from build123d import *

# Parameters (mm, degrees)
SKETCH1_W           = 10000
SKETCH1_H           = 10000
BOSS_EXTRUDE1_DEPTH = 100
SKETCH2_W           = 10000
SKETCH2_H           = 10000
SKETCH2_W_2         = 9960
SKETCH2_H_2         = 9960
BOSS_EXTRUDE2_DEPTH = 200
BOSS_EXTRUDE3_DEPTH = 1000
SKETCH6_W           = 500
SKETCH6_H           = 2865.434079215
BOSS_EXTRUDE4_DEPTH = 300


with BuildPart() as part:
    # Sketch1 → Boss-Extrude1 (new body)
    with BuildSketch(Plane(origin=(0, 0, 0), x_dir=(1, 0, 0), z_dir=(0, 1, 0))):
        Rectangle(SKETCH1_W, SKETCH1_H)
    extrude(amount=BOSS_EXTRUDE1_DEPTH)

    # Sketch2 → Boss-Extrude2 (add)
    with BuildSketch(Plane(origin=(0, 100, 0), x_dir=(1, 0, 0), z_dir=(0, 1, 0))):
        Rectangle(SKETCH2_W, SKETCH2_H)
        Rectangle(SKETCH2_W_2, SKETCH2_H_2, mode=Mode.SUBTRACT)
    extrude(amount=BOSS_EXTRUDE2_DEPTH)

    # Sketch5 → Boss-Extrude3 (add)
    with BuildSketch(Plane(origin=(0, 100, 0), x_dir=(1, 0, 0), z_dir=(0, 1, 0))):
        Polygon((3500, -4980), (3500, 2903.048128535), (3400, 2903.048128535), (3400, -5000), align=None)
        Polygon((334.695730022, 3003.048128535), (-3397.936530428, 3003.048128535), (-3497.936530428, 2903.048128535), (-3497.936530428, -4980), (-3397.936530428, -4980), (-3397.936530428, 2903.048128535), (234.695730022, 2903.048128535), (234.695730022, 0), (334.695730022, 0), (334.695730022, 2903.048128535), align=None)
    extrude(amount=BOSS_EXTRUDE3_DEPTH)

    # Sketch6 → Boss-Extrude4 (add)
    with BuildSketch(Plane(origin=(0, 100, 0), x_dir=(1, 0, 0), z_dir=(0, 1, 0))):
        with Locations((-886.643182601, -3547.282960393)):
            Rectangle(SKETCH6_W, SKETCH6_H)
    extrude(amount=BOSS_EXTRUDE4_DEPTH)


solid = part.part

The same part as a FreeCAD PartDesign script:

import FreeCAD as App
import Part
import Sketcher
Q = App.Units.Quantity

doc = App.newDocument("Part")
body = doc.addObject("PartDesign::Body", "Body")

sketch1 = body.newObject("Sketcher::SketchObject", "Sketch")
sketch1.AttachmentSupport = (doc.getObject("XZ_Plane"), [""])
sketch1.MapMode = "FlatFace"
sketch1.addGeometry([
    Part.LineSegment(App.Vector(-5000, -5000, 0), App.Vector(-5000, 5000, 0)),
    Part.LineSegment(App.Vector(-5000, 5000, 0), App.Vector(5000, 5000, 0)),
    Part.LineSegment(App.Vector(5000, 5000, 0), App.Vector(5000, -5000, 0)),
    Part.LineSegment(App.Vector(5000, -5000, 0), App.Vector(-5000, -5000, 0)),
], False)
sketch1.addConstraint([
    Sketcher.Constraint("Coincident", 0, 2, 1, 1),
    Sketcher.Constraint("Coincident", 1, 2, 2, 1),
    Sketcher.Constraint("Coincident", 2, 2, 3, 1),
    Sketcher.Constraint("Coincident", 3, 2, 0, 1),
    Sketcher.Constraint("Vertical", 0),
    Sketcher.Constraint("Horizontal", 1),
    Sketcher.Constraint("Vertical", 2),
    Sketcher.Constraint("Horizontal", 3),
    Sketcher.Constraint("Symmetric", 0, 2, 2, 2, -1, 1),
    Sketcher.Constraint("Equal", 3, 0),
    Sketcher.Constraint("DistanceX", 1, 1, 1, 2, 10000.0),
])
pad1 = body.newObject("PartDesign::Pad", "Pad")
pad1.Profile = sketch1
pad1.Length = 100
pad1.Reversed = True

sketch2 = body.newObject("Sketcher::SketchObject", "Sketch001")
sketch2.AttachmentSupport = (doc.getObject("XZ_Plane"), [""])
sketch2.MapMode = "FlatFace"
sketch2.AttachmentOffset = App.Placement(App.Vector(0, 0, -100), App.Rotation())
sketch2.addGeometry([
    Part.LineSegment(App.Vector(-5000, -5000, 0), App.Vector(-5000, 5000, 0)),
    Part.LineSegment(App.Vector(-5000, 5000, 0), App.Vector(5000, 5000, 0)),
    Part.LineSegment(App.Vector(5000, 5000, 0), App.Vector(5000, -5000, 0)),
    Part.LineSegment(App.Vector(5000, -5000, 0), App.Vector(-5000, -5000, 0)),
    Part.LineSegment(App.Vector(4980, 4980, 0), App.Vector(-4980, 4980, 0)),
    Part.LineSegment(App.Vector(-4980, 4980, 0), App.Vector(-4980, -4980, 0)),
    Part.LineSegment(App.Vector(-4980, -4980, 0), App.Vector(4980, -4980, 0)),
    Part.LineSegment(App.Vector(4980, -4980, 0), App.Vector(4980, 4980, 0)),
], False)
sketch2.addConstraint([
    Sketcher.Constraint("Coincident", 0, 2, 1, 1),
    Sketcher.Constraint("Coincident", 1, 2, 2, 1),
    Sketcher.Constraint("Coincident", 2, 2, 3, 1),
    Sketcher.Constraint("Coincident", 3, 2, 0, 1),
    Sketcher.Constraint("Coincident", 4, 2, 5, 1),
    Sketcher.Constraint("Coincident", 5, 2, 6, 1),
    Sketcher.Constraint("Coincident", 6, 2, 7, 1),
    Sketcher.Constraint("Coincident", 7, 2, 4, 1),
    Sketcher.Constraint("Vertical", 0),
    Sketcher.Constraint("Horizontal", 1),
    Sketcher.Constraint("Vertical", 2),
    Sketcher.Constraint("Horizontal", 3),
    Sketcher.Constraint("Horizontal", 4),
    Sketcher.Constraint("Vertical", 5),
    Sketcher.Constraint("Horizontal", 6),
    Sketcher.Constraint("Vertical", 7),
    Sketcher.Constraint("Symmetric", 0, 2, 2, 2, -1, 1),
    Sketcher.Constraint("Symmetric", 4, 2, 6, 2, -1, 1),
    Sketcher.Constraint("Equal", 3, 0),
    Sketcher.Constraint("Equal", 6, 5),
    Sketcher.Constraint("DistanceX", 1, 1, 1, 2, 10000.0),
    Sketcher.Constraint("DistanceX", 4, 2, 4, 1, 9960.0),
])
pad2 = body.newObject("PartDesign::Pad", "Pad001")
pad2.Profile = sketch2
pad2.Length = 200
pad2.Reversed = True

sketch3 = body.newObject("Sketcher::SketchObject", "Sketch002")
sketch3.AttachmentSupport = (doc.getObject("XZ_Plane"), [""])
sketch3.MapMode = "FlatFace"
sketch3.AttachmentOffset = App.Placement(App.Vector(0, 0, -100), App.Rotation())
sketch3.addGeometry([
    Part.LineSegment(App.Vector(3500, 4980, 0), App.Vector(3500, -2903, 0)),
    Part.LineSegment(App.Vector(3500, -2903, 0), App.Vector(3400, -2903, 0)),
    Part.LineSegment(App.Vector(3400, -2903, 0), App.Vector(3400, 5000, 0)),
    Part.LineSegment(App.Vector(3400, 5000, 0), App.Vector(3500, 4980, 0)),
    Part.LineSegment(App.Vector(335, -3003, 0), App.Vector(-3398, -3003, 0)),
    Part.LineSegment(App.Vector(-3398, -3003, 0), App.Vector(-3498, -2903, 0)),
    Part.LineSegment(App.Vector(-3498, -2903, 0), App.Vector(-3498, 4980, 0)),
    Part.LineSegment(App.Vector(-3498, 4980, 0), App.Vector(-3398, 4980, 0)),
    Part.LineSegment(App.Vector(-3398, 4980, 0), App.Vector(-3398, -2903, 0)),
    Part.LineSegment(App.Vector(-3398, -2903, 0), App.Vector(235, -2903, 0)),
    Part.LineSegment(App.Vector(235, -2903, 0), App.Vector(235, 0, 0)),
    Part.LineSegment(App.Vector(235, 0, 0), App.Vector(335, 0, 0)),
    Part.LineSegment(App.Vector(335, 0, 0), App.Vector(335, -3003, 0)),
], False)
sketch3.addConstraint([
    Sketcher.Constraint("Coincident", 0, 2, 1, 1),
    Sketcher.Constraint("Coincident", 1, 2, 2, 1),
    Sketcher.Constraint("Coincident", 2, 2, 3, 1),
    Sketcher.Constraint("Coincident", 3, 2, 0, 1),
    Sketcher.Constraint("Coincident", 4, 2, 5, 1),
    Sketcher.Constraint("Coincident", 5, 2, 6, 1),
    Sketcher.Constraint("Coincident", 6, 2, 7, 1),
    Sketcher.Constraint("Coincident", 7, 2, 8, 1),
    Sketcher.Constraint("Coincident", 8, 2, 9, 1),
    Sketcher.Constraint("Coincident", 9, 2, 10, 1),
    Sketcher.Constraint("Coincident", 10, 2, 11, 1),
    Sketcher.Constraint("Coincident", 11, 2, 12, 1),
    Sketcher.Constraint("Coincident", 12, 2, 4, 1),
    Sketcher.Constraint("Vertical", 0),
    Sketcher.Constraint("Horizontal", 1),
    Sketcher.Constraint("Vertical", 2),
    Sketcher.Constraint("Horizontal", 4),
    Sketcher.Constraint("Vertical", 6),
    Sketcher.Constraint("Horizontal", 7),
    Sketcher.Constraint("Vertical", 8),
    Sketcher.Constraint("Horizontal", 9),
    Sketcher.Constraint("Vertical", 10),
    Sketcher.Constraint("Horizontal", 11),
    Sketcher.Constraint("Vertical", 12),
    Sketcher.Constraint("PointOnObject", 10, 2, -1),
    Sketcher.Constraint("Horizontal", 1, 2, 5, 2),
    Sketcher.Constraint("Horizontal", 3, 2, 6, 2),
    Sketcher.Constraint("Horizontal", 5, 2, 8, 2),
    Sketcher.Constraint("Vertical", 4, 2, 7, 2),
    Sketcher.Constraint("Equal", 1, 7),
    Sketcher.Constraint("Equal", 7, 11),
    Sketcher.Constraint("DistanceX", 1, 2, 1, 1, 100.0),
    Sketcher.Constraint("Angle", 5, Q("135 deg")),
    Sketcher.Constraint("DistanceX", -1, 1, 0, 2, 3500.0),
    Sketcher.Constraint("DistanceY", -1, 1, 2, 2, 5000.0),
    Sketcher.Constraint("DistanceY", -1, 1, 3, 2, 4980.0),
    Sketcher.Constraint("DistanceX", 4, 2, 4, 1, 3732.63226),
    Sketcher.Constraint("DistanceY", 0, 2, 0, 1, 7883.048129),
    Sketcher.Constraint("DistanceX", 4, 2, -1, 1, 3397.93653),
])
pad3 = body.newObject("PartDesign::Pad", "Pad002")
pad3.Profile = sketch3
pad3.Length = 1000
pad3.Reversed = True

sketch4 = body.newObject("Sketcher::SketchObject", "Sketch003")
sketch4.AttachmentSupport = (doc.getObject("XZ_Plane"), [""])
sketch4.MapMode = "FlatFace"
sketch4.AttachmentOffset = App.Placement(App.Vector(0, 0, -100), App.Rotation())
sketch4.addGeometry([
    Part.LineSegment(App.Vector(-1137, 2115, 0), App.Vector(-1137, 4980, 0)),
    Part.LineSegment(App.Vector(-1137, 4980, 0), App.Vector(-637, 4980, 0)),
    Part.LineSegment(App.Vector(-637, 4980, 0), App.Vector(-637, 2115, 0)),
    Part.LineSegment(App.Vector(-637, 2115, 0), App.Vector(-1137, 2115, 0)),
], False)
sketch4.addConstraint([
    Sketcher.Constraint("Coincident", 0, 2, 1, 1),
    Sketcher.Constraint("Coincident", 1, 2, 2, 1),
    Sketcher.Constraint("Coincident", 2, 2, 3, 1),
    Sketcher.Constraint("Coincident", 3, 2, 0, 1),
    Sketcher.Constraint("Vertical", 0),
    Sketcher.Constraint("Horizontal", 1),
    Sketcher.Constraint("Vertical", 2),
    Sketcher.Constraint("Horizontal", 3),
    Sketcher.Constraint("DistanceX", 1, 1, 1, 2, 500.0),
    Sketcher.Constraint("DistanceY", -1, 1, 0, 2, 4980.0),
    Sketcher.Constraint("DistanceY", 0, 1, 0, 2, 2865.434079),
    Sketcher.Constraint("DistanceX", 0, 2, -1, 1, 1136.643183),
])
pad4 = body.newObject("PartDesign::Pad", "Pad003")
pad4.Profile = sketch4
pad4.Length = 300
pad4.Reversed = True

doc.recompute()
